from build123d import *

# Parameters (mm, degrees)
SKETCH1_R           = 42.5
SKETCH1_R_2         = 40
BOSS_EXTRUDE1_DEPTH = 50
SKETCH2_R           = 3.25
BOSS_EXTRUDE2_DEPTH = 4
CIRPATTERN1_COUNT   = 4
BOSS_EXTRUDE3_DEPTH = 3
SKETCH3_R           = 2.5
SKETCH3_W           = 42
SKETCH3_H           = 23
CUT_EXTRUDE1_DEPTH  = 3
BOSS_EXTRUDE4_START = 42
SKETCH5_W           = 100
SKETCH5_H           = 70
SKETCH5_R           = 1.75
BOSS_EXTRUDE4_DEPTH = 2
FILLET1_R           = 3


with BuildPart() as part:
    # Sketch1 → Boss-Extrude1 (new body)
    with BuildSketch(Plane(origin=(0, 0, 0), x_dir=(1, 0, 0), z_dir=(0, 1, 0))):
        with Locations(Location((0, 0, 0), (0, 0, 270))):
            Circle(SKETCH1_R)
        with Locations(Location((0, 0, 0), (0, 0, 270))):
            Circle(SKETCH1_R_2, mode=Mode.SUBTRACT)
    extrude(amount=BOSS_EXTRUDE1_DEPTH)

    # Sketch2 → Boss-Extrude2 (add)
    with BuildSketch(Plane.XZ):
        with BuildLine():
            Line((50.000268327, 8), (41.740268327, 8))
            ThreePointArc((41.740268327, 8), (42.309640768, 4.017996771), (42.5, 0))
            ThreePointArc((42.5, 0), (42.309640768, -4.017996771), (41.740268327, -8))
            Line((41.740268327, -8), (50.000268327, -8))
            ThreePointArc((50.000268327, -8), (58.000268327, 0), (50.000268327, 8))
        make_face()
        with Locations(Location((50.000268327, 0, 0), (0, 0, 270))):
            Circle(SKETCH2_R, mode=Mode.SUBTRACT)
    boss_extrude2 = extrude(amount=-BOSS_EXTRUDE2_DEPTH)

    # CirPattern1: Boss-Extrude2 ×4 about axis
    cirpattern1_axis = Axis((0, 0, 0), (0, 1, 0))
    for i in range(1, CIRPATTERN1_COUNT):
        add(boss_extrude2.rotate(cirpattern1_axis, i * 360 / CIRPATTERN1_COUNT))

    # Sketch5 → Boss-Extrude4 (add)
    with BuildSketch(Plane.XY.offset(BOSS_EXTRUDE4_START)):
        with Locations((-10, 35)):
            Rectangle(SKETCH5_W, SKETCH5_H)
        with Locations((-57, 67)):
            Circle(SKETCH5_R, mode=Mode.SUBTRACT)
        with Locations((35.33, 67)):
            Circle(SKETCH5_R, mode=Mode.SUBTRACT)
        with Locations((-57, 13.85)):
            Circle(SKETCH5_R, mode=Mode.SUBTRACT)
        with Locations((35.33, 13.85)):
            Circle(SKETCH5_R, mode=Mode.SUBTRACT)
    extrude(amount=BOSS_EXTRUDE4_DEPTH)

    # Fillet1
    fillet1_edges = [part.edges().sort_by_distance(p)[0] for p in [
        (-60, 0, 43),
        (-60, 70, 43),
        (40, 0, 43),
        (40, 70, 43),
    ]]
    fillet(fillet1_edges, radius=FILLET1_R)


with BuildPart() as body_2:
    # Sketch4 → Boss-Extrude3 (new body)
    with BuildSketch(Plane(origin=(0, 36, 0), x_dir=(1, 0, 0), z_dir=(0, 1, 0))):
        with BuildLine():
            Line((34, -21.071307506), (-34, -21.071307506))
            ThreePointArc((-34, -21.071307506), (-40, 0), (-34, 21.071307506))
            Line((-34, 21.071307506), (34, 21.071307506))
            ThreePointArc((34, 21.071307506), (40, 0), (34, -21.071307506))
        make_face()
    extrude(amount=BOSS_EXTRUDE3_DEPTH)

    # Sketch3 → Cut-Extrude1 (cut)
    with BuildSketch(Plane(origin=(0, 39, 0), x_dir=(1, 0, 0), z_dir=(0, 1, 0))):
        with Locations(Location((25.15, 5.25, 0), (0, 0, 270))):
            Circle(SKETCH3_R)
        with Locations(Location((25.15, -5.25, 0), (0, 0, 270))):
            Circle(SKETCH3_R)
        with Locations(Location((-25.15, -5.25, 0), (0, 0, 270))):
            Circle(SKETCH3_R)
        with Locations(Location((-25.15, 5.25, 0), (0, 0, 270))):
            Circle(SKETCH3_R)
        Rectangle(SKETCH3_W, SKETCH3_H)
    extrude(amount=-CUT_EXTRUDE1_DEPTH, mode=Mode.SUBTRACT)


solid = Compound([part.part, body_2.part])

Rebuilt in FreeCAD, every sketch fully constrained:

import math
import FreeCAD as App
import Part
import Sketcher
from FreeCAD import Vector


def edges_at(feature, points):
    """Names of the edges that pass closest to the given points."""
    edges = feature.Shape.Edges
    near = lambda p: min(range(len(edges)), key=lambda i: edges[i].distToShape(Part.Vertex(*p))[0])
    return sorted({f"Edge{near(p) + 1}" for p in points})

doc = App.newDocument("Part")
body = doc.addObject("PartDesign::Body", "Body")

sketch1 = body.newObject("Sketcher::SketchObject", "Sketch")
sketch1.AttachmentSupport = (doc.getObject("XZ_Plane"), [""])
sketch1.MapMode = "FlatFace"
sketch1.addGeometry([
    Part.Circle(Vector(0, 0, 0), Vector(0, 0, 1), 42.5),
    Part.Circle(Vector(0, 0, 0), Vector(0, 0, 1), 40),
], False)
sketch1.addConstraint([
    Sketcher.Constraint("Coincident", 0, 3, -1, 1),
    Sketcher.Constraint("Coincident", 1, 3, -1, 1),
    Sketcher.Constraint("Diameter", 0, 85.0),
    Sketcher.Constraint("Diameter", 1, 80.0),
])
pad1 = body.newObject("PartDesign::Pad", "Pad")
pad1.Profile = sketch1
pad1.Length = 50
pad1.Reversed = True

sketch2 = body.newObject("Sketcher::SketchObject", "Sketch001")
sketch2.AttachmentSupport = (doc.getObject("XZ_Plane"), [""])
sketch2.MapMode = "FlatFace"
sketch2.addGeometry([
    Part.LineSegment(Vector(50.000268, 8, 0), Vector(41.740268, 8, 0)),
    Part.ArcOfCircle(Part.Circle(Vector(0, 0, 0), Vector(0, 0, 1), 42.5), math.radians(0), math.radians(10.849816)),
    Part.ArcOfCircle(Part.Circle(Vector(0, 0, 0), Vector(0, 0, 1), 42.5), math.radians(-10.849816), math.radians(0)),
    Part.LineSegment(Vector(41.740268, -8, 0), Vector(50.000268, -8, 0)),
    Part.ArcOfCircle(Part.Circle(Vector(50.000268, 0, 0), Vector(0, 0, 1), 8), math.radians(-90), math.radians(90)),
    Part.Circle(Vector(50.000268, 0, 0), Vector(0, 0, 1), 3.25),
], False)
sketch2.addConstraint([
    Sketcher.Constraint("Coincident", 0, 2, 1, 2),
    Sketcher.Constraint("Tangent", 1, 1, 2, 2),
    Sketcher.Constraint("Coincident", 2, 1, 3, 1),
    Sketcher.Constraint("Tangent", 3, 2, 4, 1),
    Sketcher.Constraint("Tangent", 4, 2, 0, 1),
    Sketcher.Constraint("Horizontal", 0),
    Sketcher.Constraint("Horizontal", 3),
    Sketcher.Constraint("Coincident", 1, 3, -1, 1),
    Sketcher.Constraint("Coincident", 5, 3, 4, 3),
    Sketcher.Constraint("Equal", 1, 2),
    Sketcher.Constraint("PointOnObject", 4, 3, -1),
    Sketcher.Constraint("PointOnObject", 1, 1, -1),
    Sketcher.Constraint("Radius", 4, 8.0),
    Sketcher.Constraint("Diameter", 5, 6.5),
    Sketcher.Constraint("Radius", 1, 42.5),
    Sketcher.Constraint("DistanceX", 0, 2, 0, 1, 8.26),
])
pad2 = body.newObject("PartDesign::Pad", "Pad001")
pad2.Profile = sketch2
pad2.Length = 4
pad2.Reversed = True
doc.recompute()

polarpattern = body.newObject("PartDesign::PolarPattern", "PolarPattern")
polarpattern.Originals = [pad2]
polarpattern.Axis = (doc.getObject("Y_Axis"), [""])
polarpattern.Angle = 360
polarpattern.Occurrences = 4
body.Tip = polarpattern

sketch3 = body.newObject("Sketcher::SketchObject", "Sketch002")
sketch3.AttachmentSupport = (doc.getObject("XY_Plane"), [""])
sketch3.MapMode = "FlatFace"
sketch3.AttachmentOffset = App.Placement(Vector(0, 0, 42), App.Rotation())
sketch3.addGeometry([
    Part.LineSegment(Vector(-60, 70, 0), Vector(-60, 0, 0)),
    Part.LineSegment(Vector(-60, 0, 0), Vector(40, 0, 0)),
    Part.LineSegment(Vector(40, 0, 0), Vector(40, 70, 0)),
    Part.LineSegment(Vector(40, 70, 0), Vector(-60, 70, 0)),
    Part.Circle(Vector(-57, 13.85, 0), Vector(0, 0, 1), 1.75),
    Part.Circle(Vector(35.33, 13.85, 0), Vector(0, 0, 1), 1.75),
    Part.Circle(Vector(-57, 67, 0), Vector(0, 0, 1), 1.75),
    Part.Circle(Vector(35.33, 67, 0), Vector(0, 0, 1), 1.75),
], False)
sketch3.addConstraint([
    Sketcher.Constraint("Coincident", 0, 2, 1, 1),
    Sketcher.Constraint("Coincident", 1, 2, 2, 1),
    Sketcher.Constraint("Coincident", 2, 2, 3, 1),
    Sketcher.Constraint("Coincident", 3, 2, 0, 1),
    Sketcher.Constraint("Vertical", 0),
    Sketcher.Constraint("Horizontal", 1),
    Sketcher.Constraint("Vertical", 2),
    Sketcher.Constraint("Horizontal", 3),
    Sketcher.Constraint("Equal", 4, 5),
    Sketcher.Constraint("Equal", 5, 6),
    Sketcher.Constraint("Equal", 6, 7),
    Sketcher.Constraint("PointOnObject", 0, 2, -1),
    Sketcher.Constraint("Horizontal", 4, 3, 5, 3),
    Sketcher.Constraint("Horizontal", 6, 3, 7, 3),
    Sketcher.Constraint("Vertical", 4, 3, 6, 3),
    Sketcher.Constraint("Vertical", 5, 3, 7, 3),
    Sketcher.Constraint("Diameter", 4, 3.5),
    Sketcher.Constraint("DistanceX", 1, 1, 1, 2, 100.0),
    Sketcher.Constraint("DistanceY", 0, 2, 0, 1, 70.0),
    Sketcher.Constraint("DistanceX", 4, 3, -1, 1, 57.0),
    Sketcher.Constraint("DistanceY", -1, 1, 6, 3, 67.0),
    Sketcher.Constraint("DistanceX", 0, 2, -1, 1, 60.0),
    Sketcher.Constraint("DistanceY", -1, 1, 4, 3, 13.85),
    Sketcher.Constraint("DistanceX", -1, 1, 5, 3, 35.33),
])
pad3 = body.newObject("PartDesign::Pad", "Pad002")
pad3.Profile = sketch3
pad3.Length = 2
doc.recompute()

fillet = body.newObject("PartDesign::Fillet", "Fillet")
fillet.Base = (pad3, edges_at(pad3, [
    (-60, 0, 43),
    (-60, 70, 43),
    (40, 0, 43),
    (40, 70, 43),
]))
fillet.Radius = 3
body2 = doc.addObject("PartDesign::Body", "Body001")

sketch4 = body2.newObject("Sketcher::SketchObject", "Sketch003")
sketch4.AttachmentSupport = (doc.getObject("XZ_Plane001"), [""])
sketch4.MapMode = "FlatFace"
sketch4.AttachmentOffset = App.Placement(Vector(0, 0, -36), App.Rotation())
sketch4.addGeometry([
    Part.LineSegment(Vector(-34, 21.071308, 0), Vector(34, 21.071308, 0)),
    Part.ArcOfCircle(Part.Circle(Vector(0, 0, 0), Vector(0, 0, 1), 40), math.radians(-31.788331), math.radians(31.788331)),
    Part.LineSegment(Vector(34, -21.071308, 0), Vector(-34, -21.071308, 0)),
    Part.ArcOfCircle(Part.Circle(Vector(0, 0, 0), Vector(0, 0, 1), 40), math.radians(148.211669), math.radians(211.788331)),
], False)
sketch4.addConstraint([
    Sketcher.Constraint("Coincident", 0, 2, 1, 2),
    Sketcher.Constraint("Coincident", 1, 1, 2, 1),
    Sketcher.Constraint("Coincident", 2, 2, 3, 2),
    Sketcher.Constraint("Coincident", 3, 1, 0, 1),
    Sketcher.Constraint("Horizontal", 0),
    Sketcher.Constraint("Horizontal", 2),
    Sketcher.Constraint("Coincident", 1, 3, -1, 1),
    Sketcher.Constraint("Coincident", 3, 3, -1, 1),
    Sketcher.Constraint("Equal", 1, 3),
    Sketcher.Constraint("Vertical", 0, 2, 1, 1),
    Sketcher.Constraint("Radius", 1, 40.0),
    Sketcher.Constraint("DistanceX", 0, 1, 0, 2, 68.0),
])
pad4 = body2.newObject("PartDesign::Pad", "Pad003")
pad4.Profile = sketch4
pad4.Length = 3
pad4.Reversed = True

sketch5 = body2.newObject("Sketcher::SketchObject", "Sketch004")
sketch5.AttachmentSupport = (doc.getObject("XZ_Plane001"), [""])
sketch5.MapMode = "FlatFace"
sketch5.AttachmentOffset = App.Placement(Vector(0, 0, -39), App.Rotation())
sketch5.addGeometry([
    Part.Circle(Vector(25.15, -5.25, 0), Vector(0, 0, 1), 2.5),
    Part.Circle(Vector(25.15, 5.25, 0), Vector(0, 0, 1), 2.5),
    Part.Circle(Vector(-25.15, 5.25, 0), Vector(0, 0, 1), 2.5),
    Part.Circle(Vector(-25.15, -5.25, 0), Vector(0, 0, 1), 2.5),
    Part.LineSegment(Vector(-21, -11.5, 0), Vector(-21, 11.5, 0)),
    Part.LineSegment(Vector(-21, 11.5, 0), Vector(21, 11.5, 0)),
    Part.LineSegment(Vector(21, 11.5, 0), Vector(21, -11.5, 0)),
    Part.LineSegment(Vector(21, -11.5, 0), Vector(-21, -11.5, 0)),
], False)
sketch5.addConstraint([
    Sketcher.Constraint("Coincident", 4, 2, 5, 1),
    Sketcher.Constraint("Coincident", 5, 2, 6, 1),
    Sketcher.Constraint("Coincident", 6, 2, 7, 1),
    Sketcher.Constraint("Coincident", 7, 2, 4, 1),
    Sketcher.Constraint("Vertical", 4),
    Sketcher.Constraint("Horizontal", 5),
    Sketcher.Constraint("Vertical", 6),
    Sketcher.Constraint("Horizontal", 7),
    Sketcher.Constraint("Equal", 0, 1),
    Sketcher.Constraint("Equal", 1, 2),
    Sketcher.Constraint("Equal", 2, 3),
    Sketcher.Constraint("Symmetric", 0, 3, 2, 3, -1, 1),
    Sketcher.Constraint("Symmetric", 1, 3, 3, 3, -1, 1),
    Sketcher.Constraint("Symmetric", 4, 2, 6, 2, -1, 1),
    Sketcher.Constraint("Symmetric", 1, 3, 2, 3, -2),
    Sketcher.Constraint("Diameter", 0, 5.0),
    Sketcher.Constraint("DistanceX", 5, 1, 5, 2, 42.0),
    Sketcher.Constraint("DistanceY", 4, 1, 4, 2, 23.0),
    Sketcher.Constraint("DistanceY", 0, 3, 1, 3, 10.5),
    Sketcher.Constraint("DistanceX", 2, 3, 1, 3, 50.3),
])
pocket1 = body2.newObject("PartDesign::Pocket", "Pocket")
pocket1.Profile = sketch5
pocket1.Length = 3
pocket1.Reversed = True

doc.recompute()
